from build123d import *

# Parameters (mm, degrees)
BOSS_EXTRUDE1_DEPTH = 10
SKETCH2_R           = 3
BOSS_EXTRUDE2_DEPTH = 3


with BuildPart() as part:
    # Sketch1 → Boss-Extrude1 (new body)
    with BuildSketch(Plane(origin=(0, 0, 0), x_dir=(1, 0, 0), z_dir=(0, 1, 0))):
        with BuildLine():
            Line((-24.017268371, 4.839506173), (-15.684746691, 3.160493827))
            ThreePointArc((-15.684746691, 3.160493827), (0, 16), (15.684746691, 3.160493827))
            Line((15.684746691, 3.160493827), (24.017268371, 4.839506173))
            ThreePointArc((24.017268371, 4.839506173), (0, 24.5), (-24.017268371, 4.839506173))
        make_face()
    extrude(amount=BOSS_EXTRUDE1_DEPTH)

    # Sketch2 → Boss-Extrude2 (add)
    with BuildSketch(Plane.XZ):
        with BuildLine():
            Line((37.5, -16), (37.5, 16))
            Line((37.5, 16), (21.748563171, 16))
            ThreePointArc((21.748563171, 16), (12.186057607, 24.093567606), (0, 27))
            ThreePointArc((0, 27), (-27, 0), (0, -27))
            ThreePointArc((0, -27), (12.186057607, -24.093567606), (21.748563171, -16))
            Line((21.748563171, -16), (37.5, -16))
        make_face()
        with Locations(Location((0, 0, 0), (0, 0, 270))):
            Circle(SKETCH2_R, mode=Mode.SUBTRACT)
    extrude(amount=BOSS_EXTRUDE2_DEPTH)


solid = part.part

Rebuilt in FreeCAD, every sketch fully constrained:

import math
import FreeCAD as App
import Part
import Sketcher

V = App.Vector

doc = App.newDocument("Part")
params = doc.addObject("Spreadsheet::Sheet", "Params")
for row, (alias, value) in enumerate([
    ("sketch1_radius", "16 mm"),
    ("sketch1_radius2", "24.5 mm"),
    ("pad1_length", "10 mm"),
    ("sketch2_diameter", "6 mm"),
    ("sketch2_radius", "27 mm"),
    ("sketch2_height", "32 mm"),
    ("pad2_length", "3 mm"),
], start=1):
    params.set(f"A{row}", alias)
    params.set(f"B{row}", "=" + value)
    params.setAlias(f"B{row}", alias)

body = doc.addObject("PartDesign::Body", "Body")

# Sketch on XZ plane
sketch1 = body.newObject("Sketcher::SketchObject", "Sketch")
sketch1.AttachmentSupport = (doc.getObject("XZ_Plane"), [""])
sketch1.MapMode = "FlatFace"
sketch1.addGeometry([
    Part.LineSegment(V(-24, -5, 0), V(-16, -3, 0)),
    Part.ArcOfCircle(Part.Circle(V(0, 0, 0), V(0, 0, 1), 16), math.radians(-169), math.radians(-11)),
    Part.LineSegment(V(16, -3, 0), V(24, -5, 0)),
    Part.ArcOfCircle(Part.Circle(V(0, 0, 0), V(0, 0, 1), 24), math.radians(-169), math.radians(-11)),
], False)
sketch1.addConstraint([
    Sketcher.Constraint("Coincident", 0, 2, 1, 1),
    Sketcher.Constraint("Coincident", 1, 2, 2, 1),
    Sketcher.Constraint("Coincident", 2, 2, 3, 2),
    Sketcher.Constraint("Coincident", 3, 1, 0, 1),
    Sketcher.Constraint("Coincident", 1, 3, -1, 1),
    Sketcher.Constraint("Coincident", 3, 3, -1, 1),
    Sketcher.Constraint("Horizontal", 0, 2, 1, 2),
    Sketcher.Constraint("Horizontal", 2, 2, 3, 1),
    Sketcher.Constraint("Radius", 1, 16.0),
    Sketcher.Constraint("Radius", 3, 24.5),
    Sketcher.Constraint("DistanceX", -1, 1, 2, 2, 24.017268),
    Sketcher.Constraint("DistanceX", 1, 2, 2, 2, 8.332522),
])
sketch1.setExpression("Constraints[8]", "Params.sketch1_radius")
sketch1.setExpression("Constraints[9]", "Params.sketch1_radius2")
pad1 = body.newObject("PartDesign::Pad", "Pad")
pad1.Profile = sketch1
pad1.setExpression("Length", "Params.pad1_length")
pad1.Reversed = True

# Sketch on XZ plane
sketch2 = body.newObject("Sketcher::SketchObject", "Sketch001")
sketch2.AttachmentSupport = (doc.getObject("XZ_Plane"), [""])
sketch2.MapMode = "FlatFace"
sketch2.addGeometry([
    Part.LineSegment(V(37.5, -16, 0), V(37.5, 16, 0)),  # 0
    Part.LineSegment(V(37.5, 16, 0), V(21.7, 16, 0)),  # 1
    Part.ArcOfCircle(Part.Circle(V(0, 0, 0), V(0, 0, 1), 27), math.radians(36), math.radians(90)),  # 2
    Part.ArcOfCircle(Part.Circle(V(0, 0, 0), V(0, 0, 1), 27), math.radians(90), math.radians(270)),  # 3
    Part.ArcOfCircle(Part.Circle(V(0, 0, 0), V(0, 0, 1), 27), math.radians(-90), math.radians(-36)),  # 4
    Part.LineSegment(V(21.7, -16, 0), V(37.5, -16, 0)),  # 5
    Part.Circle(V(0, 0, 0), V(0, 0, 1), 3),  # 6
], False)
sketch2.addConstraint([
    Sketcher.Constraint("Coincident", 0, 2, 1, 1),
    Sketcher.Constraint("Coincident", 1, 2, 2, 1),
    Sketcher.Constraint("Tangent", 2, 2, 3, 1),
    Sketcher.Constraint("Tangent", 3, 2, 4, 1),
    Sketcher.Constraint("Coincident", 4, 2, 5, 1),
    Sketcher.Constraint("Coincident", 5, 2, 0, 1),
    Sketcher.Constraint("Vertical", 0),
    Sketcher.Constraint("Horizontal", 1),
    Sketcher.Constraint("Horizontal", 5),
    Sketcher.Constraint("Coincident", 2, 3, -1, 1),
    Sketcher.Constraint("Coincident", 6, 3, -1, 1),
    Sketcher.Constraint("Equal", 2, 3),
    Sketcher.Constraint("Equal", 3, 4),
    Sketcher.Constraint("PointOnObject", 2, 2, -2),
    Sketcher.Constraint("PointOnObject", 3, 2, -2),
    Sketcher.Constraint("Vertical", 1, 2, 4, 2),
    Sketcher.Constraint("Diameter", 6, 6.0),
    Sketcher.Constraint("Radius", 2, 27.0),
    Sketcher.Constraint("DistanceY", 0, 1, 0, 2, 32.0),
    Sketcher.Constraint("DistanceX", -1, 1, 0, 2, 37.5),
])
sketch2.setExpression("Constraints[16]", "Params.sketch2_diameter")
sketch2.setExpression("Constraints[17]", "Params.sketch2_radius")
sketch2.setExpression("Constraints[18]", "Params.sketch2_height")
pad2 = body.newObject("PartDesign::Pad", "Pad001")
pad2.Profile = sketch2
pad2.setExpression("Length", "Params.pad2_length")

doc.recompute()
